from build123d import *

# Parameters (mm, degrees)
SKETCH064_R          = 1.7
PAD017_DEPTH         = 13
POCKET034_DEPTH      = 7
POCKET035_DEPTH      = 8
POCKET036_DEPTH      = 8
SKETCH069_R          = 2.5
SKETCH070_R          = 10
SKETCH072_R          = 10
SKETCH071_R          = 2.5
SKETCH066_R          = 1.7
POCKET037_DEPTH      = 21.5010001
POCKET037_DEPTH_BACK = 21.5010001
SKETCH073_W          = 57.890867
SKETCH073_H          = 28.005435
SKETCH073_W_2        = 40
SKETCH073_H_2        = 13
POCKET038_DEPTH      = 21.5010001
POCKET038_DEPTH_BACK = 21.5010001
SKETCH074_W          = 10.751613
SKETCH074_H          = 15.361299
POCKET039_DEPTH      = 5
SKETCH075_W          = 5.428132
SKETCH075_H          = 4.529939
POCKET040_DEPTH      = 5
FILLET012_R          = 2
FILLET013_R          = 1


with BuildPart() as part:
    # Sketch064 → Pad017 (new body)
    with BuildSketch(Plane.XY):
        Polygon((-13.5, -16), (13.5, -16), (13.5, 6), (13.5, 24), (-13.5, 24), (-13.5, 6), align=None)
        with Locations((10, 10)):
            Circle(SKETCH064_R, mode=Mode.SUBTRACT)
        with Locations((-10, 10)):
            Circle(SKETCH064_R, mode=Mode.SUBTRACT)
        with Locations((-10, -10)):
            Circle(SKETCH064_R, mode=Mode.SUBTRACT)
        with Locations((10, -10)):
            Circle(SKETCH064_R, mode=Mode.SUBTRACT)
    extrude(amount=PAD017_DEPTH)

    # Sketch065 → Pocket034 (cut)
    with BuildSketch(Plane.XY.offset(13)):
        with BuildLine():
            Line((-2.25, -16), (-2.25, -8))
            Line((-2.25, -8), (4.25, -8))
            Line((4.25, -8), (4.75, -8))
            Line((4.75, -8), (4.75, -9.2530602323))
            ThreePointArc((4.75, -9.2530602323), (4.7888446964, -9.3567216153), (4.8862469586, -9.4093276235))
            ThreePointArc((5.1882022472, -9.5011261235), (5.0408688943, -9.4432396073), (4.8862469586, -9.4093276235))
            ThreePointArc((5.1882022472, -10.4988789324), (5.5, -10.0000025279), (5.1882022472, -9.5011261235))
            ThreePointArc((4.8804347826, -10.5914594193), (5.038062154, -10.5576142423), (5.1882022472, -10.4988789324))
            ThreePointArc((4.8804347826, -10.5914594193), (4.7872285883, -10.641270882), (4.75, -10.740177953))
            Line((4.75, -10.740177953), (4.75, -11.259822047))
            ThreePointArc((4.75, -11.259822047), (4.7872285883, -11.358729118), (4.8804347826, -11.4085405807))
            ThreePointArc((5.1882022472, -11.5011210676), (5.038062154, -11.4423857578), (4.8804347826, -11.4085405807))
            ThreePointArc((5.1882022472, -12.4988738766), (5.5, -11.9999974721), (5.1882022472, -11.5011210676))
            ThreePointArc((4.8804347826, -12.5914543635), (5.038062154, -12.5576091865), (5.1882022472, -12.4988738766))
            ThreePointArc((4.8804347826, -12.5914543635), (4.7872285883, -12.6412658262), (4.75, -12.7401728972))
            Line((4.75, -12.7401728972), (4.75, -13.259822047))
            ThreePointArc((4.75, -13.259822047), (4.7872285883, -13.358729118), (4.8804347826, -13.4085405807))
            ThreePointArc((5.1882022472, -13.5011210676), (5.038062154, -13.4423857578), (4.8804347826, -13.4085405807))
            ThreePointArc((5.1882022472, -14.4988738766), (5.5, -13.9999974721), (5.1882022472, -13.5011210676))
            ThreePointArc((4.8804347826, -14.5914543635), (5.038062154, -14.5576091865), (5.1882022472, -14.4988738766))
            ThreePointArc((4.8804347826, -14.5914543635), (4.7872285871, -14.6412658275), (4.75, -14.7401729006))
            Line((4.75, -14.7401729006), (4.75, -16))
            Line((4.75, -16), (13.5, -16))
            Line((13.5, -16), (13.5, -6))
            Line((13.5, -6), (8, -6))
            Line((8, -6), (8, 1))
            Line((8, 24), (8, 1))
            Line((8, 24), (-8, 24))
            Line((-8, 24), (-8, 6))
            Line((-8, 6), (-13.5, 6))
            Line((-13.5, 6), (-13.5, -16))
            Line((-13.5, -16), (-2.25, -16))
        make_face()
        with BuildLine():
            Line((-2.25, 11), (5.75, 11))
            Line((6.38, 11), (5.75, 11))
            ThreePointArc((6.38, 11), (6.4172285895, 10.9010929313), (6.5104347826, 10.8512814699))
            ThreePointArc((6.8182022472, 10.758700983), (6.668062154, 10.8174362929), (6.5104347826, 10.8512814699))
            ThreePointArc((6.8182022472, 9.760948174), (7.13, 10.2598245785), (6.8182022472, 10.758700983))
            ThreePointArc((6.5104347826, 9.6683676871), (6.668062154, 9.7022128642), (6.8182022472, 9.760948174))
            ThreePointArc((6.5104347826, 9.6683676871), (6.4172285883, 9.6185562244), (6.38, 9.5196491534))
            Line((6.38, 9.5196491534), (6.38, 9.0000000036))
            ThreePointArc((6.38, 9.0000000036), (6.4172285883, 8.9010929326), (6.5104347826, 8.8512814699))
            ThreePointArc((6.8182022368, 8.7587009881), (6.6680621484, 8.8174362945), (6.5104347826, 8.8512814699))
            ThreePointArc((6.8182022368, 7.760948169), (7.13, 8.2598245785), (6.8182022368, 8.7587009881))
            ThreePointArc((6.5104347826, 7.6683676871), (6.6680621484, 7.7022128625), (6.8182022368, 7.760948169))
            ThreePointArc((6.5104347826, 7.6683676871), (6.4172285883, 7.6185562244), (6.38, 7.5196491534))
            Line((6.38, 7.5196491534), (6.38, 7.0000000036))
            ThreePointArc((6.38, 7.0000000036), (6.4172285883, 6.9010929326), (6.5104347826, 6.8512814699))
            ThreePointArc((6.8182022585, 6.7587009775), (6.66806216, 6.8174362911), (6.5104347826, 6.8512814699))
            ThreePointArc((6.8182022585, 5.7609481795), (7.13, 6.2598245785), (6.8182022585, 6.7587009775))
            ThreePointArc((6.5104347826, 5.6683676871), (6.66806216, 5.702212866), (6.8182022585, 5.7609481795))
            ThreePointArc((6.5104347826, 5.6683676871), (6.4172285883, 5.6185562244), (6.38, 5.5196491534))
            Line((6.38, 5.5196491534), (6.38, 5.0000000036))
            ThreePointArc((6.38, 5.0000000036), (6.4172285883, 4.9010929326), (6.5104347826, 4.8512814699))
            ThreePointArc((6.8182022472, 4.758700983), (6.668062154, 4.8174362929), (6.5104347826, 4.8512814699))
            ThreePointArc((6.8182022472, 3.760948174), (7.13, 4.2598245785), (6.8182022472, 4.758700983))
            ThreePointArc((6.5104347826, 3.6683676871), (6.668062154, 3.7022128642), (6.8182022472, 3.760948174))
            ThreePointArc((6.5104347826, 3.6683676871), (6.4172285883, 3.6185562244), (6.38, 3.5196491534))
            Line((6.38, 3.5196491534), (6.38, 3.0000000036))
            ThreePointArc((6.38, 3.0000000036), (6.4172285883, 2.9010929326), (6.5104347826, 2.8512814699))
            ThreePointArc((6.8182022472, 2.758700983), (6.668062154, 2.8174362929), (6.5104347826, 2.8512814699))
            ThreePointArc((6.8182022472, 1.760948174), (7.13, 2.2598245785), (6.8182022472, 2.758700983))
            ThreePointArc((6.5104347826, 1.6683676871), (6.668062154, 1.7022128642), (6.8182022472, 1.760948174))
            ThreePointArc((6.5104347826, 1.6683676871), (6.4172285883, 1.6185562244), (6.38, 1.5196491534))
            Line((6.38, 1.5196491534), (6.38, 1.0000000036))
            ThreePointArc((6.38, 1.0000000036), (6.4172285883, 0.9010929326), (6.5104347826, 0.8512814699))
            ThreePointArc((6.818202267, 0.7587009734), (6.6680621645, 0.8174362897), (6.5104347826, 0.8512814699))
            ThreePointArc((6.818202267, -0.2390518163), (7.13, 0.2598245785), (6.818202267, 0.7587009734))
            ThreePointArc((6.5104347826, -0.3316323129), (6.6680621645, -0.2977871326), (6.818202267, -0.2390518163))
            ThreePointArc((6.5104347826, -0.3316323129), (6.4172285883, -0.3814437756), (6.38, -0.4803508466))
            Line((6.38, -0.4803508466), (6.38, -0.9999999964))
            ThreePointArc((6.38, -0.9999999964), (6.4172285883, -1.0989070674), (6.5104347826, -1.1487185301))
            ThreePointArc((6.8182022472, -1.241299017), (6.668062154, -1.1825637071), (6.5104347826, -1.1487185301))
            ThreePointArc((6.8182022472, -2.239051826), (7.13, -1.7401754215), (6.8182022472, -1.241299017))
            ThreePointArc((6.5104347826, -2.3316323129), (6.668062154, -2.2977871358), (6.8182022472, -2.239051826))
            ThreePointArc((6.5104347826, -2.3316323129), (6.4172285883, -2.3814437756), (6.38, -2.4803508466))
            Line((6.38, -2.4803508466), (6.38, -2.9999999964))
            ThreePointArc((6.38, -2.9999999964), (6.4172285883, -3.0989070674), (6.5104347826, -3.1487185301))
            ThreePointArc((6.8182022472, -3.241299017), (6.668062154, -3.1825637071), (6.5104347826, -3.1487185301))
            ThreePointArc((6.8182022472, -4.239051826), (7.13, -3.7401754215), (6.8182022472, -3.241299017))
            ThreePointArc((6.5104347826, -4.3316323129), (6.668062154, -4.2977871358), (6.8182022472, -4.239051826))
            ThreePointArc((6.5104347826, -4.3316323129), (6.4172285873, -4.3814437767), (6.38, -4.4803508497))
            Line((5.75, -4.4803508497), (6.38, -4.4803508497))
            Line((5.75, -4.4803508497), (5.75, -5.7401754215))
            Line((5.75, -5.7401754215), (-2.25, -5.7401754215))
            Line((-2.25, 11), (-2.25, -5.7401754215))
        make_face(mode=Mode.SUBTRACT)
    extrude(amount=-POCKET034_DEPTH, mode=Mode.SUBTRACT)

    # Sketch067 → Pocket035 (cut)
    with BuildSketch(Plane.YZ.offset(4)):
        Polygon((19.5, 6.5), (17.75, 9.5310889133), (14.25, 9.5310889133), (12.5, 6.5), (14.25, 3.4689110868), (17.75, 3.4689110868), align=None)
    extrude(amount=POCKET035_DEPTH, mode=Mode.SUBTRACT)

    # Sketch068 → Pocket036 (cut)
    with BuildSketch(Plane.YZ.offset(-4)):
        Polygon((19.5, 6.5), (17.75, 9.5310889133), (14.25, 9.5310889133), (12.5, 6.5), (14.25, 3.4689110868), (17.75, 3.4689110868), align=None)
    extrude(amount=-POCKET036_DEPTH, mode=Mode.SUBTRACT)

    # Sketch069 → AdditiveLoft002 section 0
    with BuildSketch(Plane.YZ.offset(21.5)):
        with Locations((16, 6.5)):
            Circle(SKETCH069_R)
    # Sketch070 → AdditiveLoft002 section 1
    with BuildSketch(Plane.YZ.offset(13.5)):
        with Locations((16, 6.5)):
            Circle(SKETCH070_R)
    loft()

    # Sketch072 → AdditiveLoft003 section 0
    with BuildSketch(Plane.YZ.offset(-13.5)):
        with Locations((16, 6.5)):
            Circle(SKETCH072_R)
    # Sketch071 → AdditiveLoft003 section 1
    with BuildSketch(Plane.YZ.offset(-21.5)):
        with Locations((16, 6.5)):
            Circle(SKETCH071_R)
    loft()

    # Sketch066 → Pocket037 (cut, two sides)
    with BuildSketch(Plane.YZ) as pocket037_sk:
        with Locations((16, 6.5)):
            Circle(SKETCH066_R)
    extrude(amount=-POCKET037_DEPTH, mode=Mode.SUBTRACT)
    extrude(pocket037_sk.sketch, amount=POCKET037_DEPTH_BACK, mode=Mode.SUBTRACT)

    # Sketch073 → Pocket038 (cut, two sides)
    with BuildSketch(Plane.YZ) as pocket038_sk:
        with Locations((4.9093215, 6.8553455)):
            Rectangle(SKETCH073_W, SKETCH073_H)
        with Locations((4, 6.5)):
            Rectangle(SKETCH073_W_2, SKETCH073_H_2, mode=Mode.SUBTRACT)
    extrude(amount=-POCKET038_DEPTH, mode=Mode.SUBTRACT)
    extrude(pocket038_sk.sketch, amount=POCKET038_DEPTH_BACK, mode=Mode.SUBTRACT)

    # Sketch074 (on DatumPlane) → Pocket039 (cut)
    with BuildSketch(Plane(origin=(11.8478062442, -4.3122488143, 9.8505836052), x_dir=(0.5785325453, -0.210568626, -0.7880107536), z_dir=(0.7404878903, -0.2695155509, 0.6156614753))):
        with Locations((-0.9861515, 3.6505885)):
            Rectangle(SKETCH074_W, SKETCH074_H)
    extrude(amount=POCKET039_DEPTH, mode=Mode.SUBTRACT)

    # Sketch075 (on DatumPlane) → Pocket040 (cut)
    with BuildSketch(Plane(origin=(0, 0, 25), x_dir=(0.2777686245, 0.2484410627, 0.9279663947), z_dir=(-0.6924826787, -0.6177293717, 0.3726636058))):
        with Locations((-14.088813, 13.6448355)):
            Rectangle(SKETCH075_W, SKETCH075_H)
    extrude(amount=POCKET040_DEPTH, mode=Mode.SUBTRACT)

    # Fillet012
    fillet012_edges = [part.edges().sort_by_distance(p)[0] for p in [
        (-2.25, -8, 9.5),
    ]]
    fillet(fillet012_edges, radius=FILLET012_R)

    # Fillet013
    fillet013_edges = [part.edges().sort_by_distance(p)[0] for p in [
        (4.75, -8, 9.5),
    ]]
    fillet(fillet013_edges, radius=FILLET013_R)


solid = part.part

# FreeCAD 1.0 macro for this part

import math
import FreeCAD as App
import Part
import Sketcher
Q = App.Units.Quantity


def edges_at(feature, points):
    """Names of the edges that pass closest to the given points."""
    edges = feature.Shape.Edges
    near = lambda p: min(range(len(edges)), key=lambda i: edges[i].distToShape(Part.Vertex(*p))[0])
    return sorted({f"Edge{near(p) + 1}" for p in points})

doc = App.newDocument("Part")
body = doc.addObject("PartDesign::Body", "Body")

sketch1 = body.newObject("Sketcher::SketchObject", "Sketch")
sketch1.AttachmentSupport = (doc.getObject("XY_Plane"), [""])
sketch1.MapMode = "FlatFace"
sketch1.addGeometry([
    Part.LineSegment(App.Vector(-13.5, -16, 0), App.Vector(13.5, -16, 0)),
    Part.LineSegment(App.Vector(13.5, -16, 0), App.Vector(13.5, 24, 0)),
    Part.LineSegment(App.Vector(13.5, 24, 0), App.Vector(-13.5, 24, 0)),
    Part.LineSegment(App.Vector(-13.5, 24, 0), App.Vector(-13.5, -16, 0)),
    Part.Circle(App.Vector(-10, -10, 0), App.Vector(0, 0, 1), 1.7),
    Part.Circle(App.Vector(10, -10, 0), App.Vector(0, 0, 1), 1.7),
    Part.Circle(App.Vector(-10, 10, 0), App.Vector(0, 0, 1), 1.7),
    Part.Circle(App.Vector(10, 10, 0), App.Vector(0, 0, 1), 1.7),
], False)
sketch1.addConstraint([
    Sketcher.Constraint("Coincident", 0, 2, 1, 1),
    Sketcher.Constraint("Coincident", 1, 2, 2, 1),
    Sketcher.Constraint("Coincident", 2, 2, 3, 1),
    Sketcher.Constraint("Coincident", 3, 2, 0, 1),
    Sketcher.Constraint("Horizontal", 0),
    Sketcher.Constraint("Vertical", 1),
    Sketcher.Constraint("Horizontal", 2),
    Sketcher.Constraint("Vertical", 3),
    Sketcher.Constraint("Equal", 4, 5),
    Sketcher.Constraint("Equal", 5, 6),
    Sketcher.Constraint("Equal", 6, 7),
    Sketcher.Constraint("Symmetric", 5, 3, 6, 3, -1, 1),
    Sketcher.Constraint("Symmetric", 4, 3, 7, 3, -1, 1),
    Sketcher.Constraint("Symmetric", 4, 3, 5, 3, -2),
    Sketcher.Constraint("Diameter", 4, 3.4),
    Sketcher.Constraint("DistanceX", 0, 1, 0, 2, 27.0),
    Sketcher.Constraint("DistanceY", 1, 1, 1, 2, 40.0),
    Sketcher.Constraint("DistanceX", 4, 3, -1, 1, 10.0),
    Sketcher.Constraint("DistanceY", 4, 3, -1, 1, 10.0),
    Sketcher.Constraint("DistanceY", 0, 2, -1, 1, 16.0),
    Sketcher.Constraint("DistanceX", -1, 1, 0, 2, 13.5),
])
pad1 = body.newObject("PartDesign::Pad", "Pad")
pad1.Profile = sketch1
pad1.Length = 13

sketch2 = body.newObject("Sketcher::SketchObject", "Sketch001")
sketch2.AttachmentSupport = (doc.getObject("XY_Plane"), [""])
sketch2.MapMode = "FlatFace"
sketch2.AttachmentOffset = App.Placement(App.Vector(0, 0, 13), App.Rotation())
sketch2.addGeometry([
    Part.LineSegment(App.Vector(-2.25, -16, 0), App.Vector(-2.25, -8, 0)),
    Part.LineSegment(App.Vector(-2.25, -8, 0), App.Vector(4.75, -8, 0)),
    Part.LineSegment(App.Vector(4.75, -8, 0), App.Vector(4.75, -9.25, 0)),
    Part.ArcOfCircle(Part.Circle(App.Vector(4.91, -9.25, 0), App.Vector(0, 0, 1), 0.16), math.radians(-180), math.radians(-98)),
    Part.ArcOfCircle(Part.Circle(App.Vector(4.75, -10.4, 0), App.Vector(0, 0, 1), 1), math.radians(64.01), math.radians(82.17)),
    Part.ArcOfCircle(Part.Circle(App.Vector(4.95, -10, 0), App.Vector(0, 0, 1), 0.56), math.radians(-64), math.radians(64)),
    Part.ArcOfCircle(Part.Circle(App.Vector(4.75, -9.6, 0), App.Vector(0, 0, 1), 1), math.radians(-82.51), math.radians(-64.01)),
    Part.ArcOfCircle(Part.Circle(App.Vector(4.9, -10.74, 0), App.Vector(0, 0, 1), 0.15), math.radians(97), math.radians(180)),
    Part.LineSegment(App.Vector(4.75, -10.74, 0), App.Vector(4.75, -11.26, 0)),
    Part.ArcOfCircle(Part.Circle(App.Vector(4.9, -11.26, 0), App.Vector(0, 0, 1), 0.15), math.radians(180), math.radians(263)),
    Part.ArcOfCircle(Part.Circle(App.Vector(4.75, -12.4, 0), App.Vector(0, 0, 1), 1), math.radians(64.01), math.radians(82.51)),
    Part.ArcOfCircle(Part.Circle(App.Vector(4.95, -12, 0), App.Vector(0, 0, 1), 0.56), math.radians(-64), math.radians(64)),
    Part.ArcOfCircle(Part.Circle(App.Vector(4.75, -11.6, 0), App.Vector(0, 0, 1), 1), math.radians(-82.51), math.radians(-64.01)),
    Part.ArcOfCircle(Part.Circle(App.Vector(4.9, -12.74, 0), App.Vector(0, 0, 1), 0.15), math.radians(97), math.radians(180)),
    Part.LineSegment(App.Vector(4.75, -12.74, 0), App.Vector(4.75, -13.26, 0)),
    Part.ArcOfCircle(Part.Circle(App.Vector(4.9, -13.26, 0), App.Vector(0, 0, 1), 0.15), math.radians(180), math.radians(263)),
    Part.ArcOfCircle(Part.Circle(App.Vector(4.75, -14.4, 0), App.Vector(0, 0, 1), 1), math.radians(64.01), math.radians(82.51)),
    Part.ArcOfCircle(Part.Circle(App.Vector(4.95, -14, 0), App.Vector(0, 0, 1), 0.56), math.radians(-64), math.radians(64)),
    Part.ArcOfCircle(Part.Circle(App.Vector(4.75, -13.6, 0), App.Vector(0, 0, 1), 1), math.radians(-82.51), math.radians(-64.01)),
    Part.ArcOfCircle(Part.Circle(App.Vector(4.9, -14.74, 0), App.Vector(0, 0, 1), 0.15), math.radians(97), math.radians(180)),
    Part.LineSegment(App.Vector(4.75, -14.74, 0), App.Vector(4.75, -16, 0)),
    Part.LineSegment(App.Vector(4.75, -16, 0), App.Vector(13.5, -16, 0)),
    Part.LineSegment(App.Vector(13.5, -16, 0), App.Vector(13.5, -6, 0)),
    Part.LineSegment(App.Vector(13.5, -6, 0), App.Vector(8, -6, 0)),
    Part.LineSegment(App.Vector(8, -6, 0), App.Vector(8, 24, 0)),
    Part.LineSegment(App.Vector(8, 24, 0), App.Vector(-8, 24, 0)),
    Part.LineSegment(App.Vector(-8, 24, 0), App.Vector(-8, 6, 0)),
    Part.LineSegment(App.Vector(-8, 6, 0), App.Vector(-13.5, 6, 0)),
    Part.LineSegment(App.Vector(-13.5, 6, 0), App.Vector(-13.5, -16, 0)),
    Part.LineSegment(App.Vector(-13.5, -16, 0), App.Vector(-2.25, -16, 0)),
    Part.LineSegment(App.Vector(-2.25, -5.74, 0), App.Vector(-2.25, 11, 0)),
    Part.LineSegment(App.Vector(-2.25, 11, 0), App.Vector(6.38, 11, 0)),
    Part.ArcOfCircle(Part.Circle(App.Vector(6.53, 11, 0), App.Vector(0, 0, 1), 0.15), math.radians(-180), math.radians(-97)),
    Part.ArcOfCircle(Part.Circle(App.Vector(6.38, 9.86, 0), App.Vector(0, 0, 1), 1), math.radians(64.01), math.radians(82.51)),
    Part.ArcOfCircle(Part.Circle(App.Vector(6.58, 10.26, 0), App.Vector(0, 0, 1), 0.56), math.radians(-64), math.radians(64)),
    Part.ArcOfCircle(Part.Circle(App.Vector(6.38, 10.66, 0), App.Vector(0, 0, 1), 1), math.radians(-82.51), math.radians(-64.01)),
    Part.ArcOfCircle(Part.Circle(App.Vector(6.53, 9.52, 0), App.Vector(0, 0, 1), 0.15), math.radians(97), math.radians(180)),
    Part.LineSegment(App.Vector(6.38, 9.52, 0), App.Vector(6.38, 9, 0)),
    Part.ArcOfCircle(Part.Circle(App.Vector(6.53, 9, 0), App.Vector(0, 0, 1), 0.15), math.radians(180), math.radians(263)),
    Part.ArcOfCircle(Part.Circle(App.Vector(6.38, 7.86, 0), App.Vector(0, 0, 1), 1), math.radians(64.01), math.radians(82.51)),
    Part.ArcOfCircle(Part.Circle(App.Vector(6.58, 8.26, 0), App.Vector(0, 0, 1), 0.56), math.radians(-64), math.radians(64)),
    Part.ArcOfCircle(Part.Circle(App.Vector(6.38, 8.66, 0), App.Vector(0, 0, 1), 1), math.radians(-82.51), math.radians(-64.01)),
    Part.ArcOfCircle(Part.Circle(App.Vector(6.53, 7.52, 0), App.Vector(0, 0, 1), 0.15), math.radians(97), math.radians(180)),
    Part.LineSegment(App.Vector(6.38, 7.52, 0), App.Vector(6.38, 7, 0)),
    Part.ArcOfCircle(Part.Circle(App.Vector(6.53, 7, 0), App.Vector(0, 0, 1), 0.15), math.radians(180), math.radians(263)),
    Part.ArcOfCircle(Part.Circle(App.Vector(6.38, 5.86, 0), App.Vector(0, 0, 1), 1), math.radians(64.01), math.radians(82.51)),
    Part.ArcOfCircle(Part.Circle(App.Vector(6.58, 6.26, 0), App.Vector(0, 0, 1), 0.56), math.radians(-64), math.radians(64)),
    Part.ArcOfCircle(Part.Circle(App.Vector(6.38, 6.66, 0), App.Vector(0, 0, 1), 1), math.radians(-82.51), math.radians(-64.01)),
    Part.ArcOfCircle(Part.Circle(App.Vector(6.53, 5.52, 0), App.Vector(0, 0, 1), 0.15), math.radians(97), math.radians(180)),
    Part.LineSegment(App.Vector(6.38, 5.52, 0), App.Vector(6.38, 5, 0)),
    Part.ArcOfCircle(Part.Circle(App.Vector(6.53, 5, 0), App.Vector(0, 0, 1), 0.15), math.radians(180), math.radians(263)),
    Part.ArcOfCircle(Part.Circle(App.Vector(6.38, 3.86, 0), App.Vector(0, 0, 1), 1), math.radians(64.01), math.radians(82.51)),
    Part.ArcOfCircle(Part.Circle(App.Vector(6.58, 4.26, 0), App.Vector(0, 0, 1), 0.56), math.radians(-64), math.radians(64)),
    Part.ArcOfCircle(Part.Circle(App.Vector(6.38, 4.66, 0), App.Vector(0, 0, 1), 1), math.radians(-82.51), math.radians(-64.01)),
    Part.ArcOfCircle(Part.Circle(App.Vector(6.53, 3.52, 0), App.Vector(0, 0, 1), 0.15), math.radians(97), math.radians(180)),
    Part.LineSegment(App.Vector(6.38, 3.52, 0), App.Vector(6.38, 3, 0)),
    Part.ArcOfCircle(Part.Circle(App.Vector(6.53, 3, 0), App.Vector(0, 0, 1), 0.15), math.radians(180), math.radians(263)),
    Part.ArcOfCircle(Part.Circle(App.Vector(6.38, 1.86, 0), App.Vector(0, 0, 1), 1), math.radians(64.01), math.radians(82.51)),
    Part.ArcOfCircle(Part.Circle(App.Vector(6.58, 2.26, 0), App.Vector(0, 0, 1), 0.56), math.radians(-64), math.radians(64)),
    Part.ArcOfCircle(Part.Circle(App.Vector(6.38, 2.66, 0), App.Vector(0, 0, 1), 1), math.radians(-82.51), math.radians(-64.01)),
    Part.ArcOfCircle(Part.Circle(App.Vector(6.53, 1.52, 0), App.Vector(0, 0, 1), 0.15), math.radians(97), math.radians(180)),
    Part.LineSegment(App.Vector(6.38, 1.52, 0), App.Vector(6.38, 1, 0)),
    Part.ArcOfCircle(Part.Circle(App.Vector(6.53, 1, 0), App.Vector(0, 0, 1), 0.15), math.radians(180), math.radians(263)),
    Part.ArcOfCircle(Part.Circle(App.Vector(6.38, -0.14, 0), App.Vector(0, 0, 1), 1), math.radians(64.01), math.radians(82.51)),
    Part.ArcOfCircle(Part.Circle(App.Vector(6.58, 0.26, 0), App.Vector(0, 0, 1), 0.56), math.radians(-64), math.radians(64)),
    Part.ArcOfCircle(Part.Circle(App.Vector(6.38, 0.66, 0), App.Vector(0, 0, 1), 1), math.radians(-82.51), math.radians(-64.01)),
    Part.ArcOfCircle(Part.Circle(App.Vector(6.53, -0.48, 0), App.Vector(0, 0, 1), 0.15), math.radians(97), math.radians(180)),
    Part.LineSegment(App.Vector(6.38, -0.48, 0), App.Vector(6.38, -1, 0)),
    Part.ArcOfCircle(Part.Circle(App.Vector(6.53, -1, 0), App.Vector(0, 0, 1), 0.15), math.radians(180), math.radians(263)),
    Part.ArcOfCircle(Part.Circle(App.Vector(6.38, -2.14, 0), App.Vector(0, 0, 1), 1), math.radians(64.01), math.radians(82.51)),
    Part.ArcOfCircle(Part.Circle(App.Vector(6.58, -1.74, 0), App.Vector(0, 0, 1), 0.56), math.radians(-64), math.radians(64)),
    Part.ArcOfCircle(Part.Circle(App.Vector(6.38, -1.34, 0), App.Vector(0, 0, 1), 1), math.radians(-82.51), math.radians(-64.01)),
    Part.ArcOfCircle(Part.Circle(App.Vector(6.53, -2.48, 0), App.Vector(0, 0, 1), 0.15), math.radians(97), math.radians(180)),
    Part.LineSegment(App.Vector(6.38, -2.48, 0), App.Vector(6.38, -3, 0)),
    Part.ArcOfCircle(Part.Circle(App.Vector(6.53, -3, 0), App.Vector(0, 0, 1), 0.15), math.radians(180), math.radians(263)),
    Part.ArcOfCircle(Part.Circle(App.Vector(6.38, -4.14, 0), App.Vector(0, 0, 1), 1), math.radians(64.01), math.radians(82.51)),
    Part.ArcOfCircle(Part.Circle(App.Vector(6.58, -3.74, 0), App.Vector(0, 0, 1), 0.56), math.radians(-64), math.radians(64)),
    Part.ArcOfCircle(Part.Circle(App.Vector(6.38, -3.34, 0), App.Vector(0, 0, 1), 1), math.radians(-82.51), math.radians(-64.01)),
    Part.ArcOfCircle(Part.Circle(App.Vector(6.53, -4.48, 0), App.Vector(0, 0, 1), 0.15), math.radians(97), math.radians(180)),
    Part.LineSegment(App.Vector(6.38, -4.48, 0), App.Vector(5.75, -4.48, 0)),
    Part.LineSegment(App.Vector(5.75, -4.48, 0), App.Vector(5.75, -5.74, 0)),
    Part.LineSegment(App.Vector(5.75, -5.74, 0), App.Vector(-2.25, -5.74, 0)),
], False)
sketch2.addConstraint([
    Sketcher.Constraint("Coincident", 0, 2, 1, 1),
    Sketcher.Constraint("Coincident", 1, 2, 2, 1),
    Sketcher.Constraint("Tangent", 2, 2, 3, 1),
    Sketcher.Constraint("Tangent", 3, 2, 4, 2),
    Sketcher.Constraint("Tangent", 4, 1, 5, 2),
    Sketcher.Constraint("Tangent", 5, 1, 6, 2),
    Sketcher.Constraint("Tangent", 6, 1, 7, 1),
    Sketcher.Constraint("Tangent", 7, 2, 8, 1),
    Sketcher.Constraint("Tangent", 8, 2, 9, 1),
    Sketcher.Constraint("Tangent", 9, 2, 10, 2),
    Sketcher.Constraint("Tangent", 10, 1, 11, 2),
    Sketcher.Constraint("Tangent", 11, 1, 12, 2),
    Sketcher.Constraint("Tangent", 12, 1, 13, 1),
    Sketcher.Constraint("Tangent", 13, 2, 14, 1),
    Sketcher.Constraint("Tangent", 14, 2, 15, 1),
    Sketcher.Constraint("Tangent", 15, 2, 16, 2),
    Sketcher.Constraint("Tangent", 16, 1, 17, 2),
    Sketcher.Constraint("Tangent", 17, 1, 18, 2),
    Sketcher.Constraint("Tangent", 18, 1, 19, 1),
    Sketcher.Constraint("Tangent", 19, 2, 20, 1),
    Sketcher.Constraint("Coincident", 20, 2, 21, 1),
    Sketcher.Constraint("Coincident", 21, 2, 22, 1),
    Sketcher.Constraint("Coincident", 22, 2, 23, 1),
    Sketcher.Constraint("Coincident", 23, 2, 24, 1),
    Sketcher.Constraint("Coincident", 24, 2, 25, 1),
    Sketcher.Constraint("Coincident", 25, 2, 26, 1),
    Sketcher.Constraint("Coincident", 26, 2, 27, 1),
    Sketcher.Constraint("Coincident", 27, 2, 28, 1),
    Sketcher.Constraint("Coincident", 28, 2, 29, 1),
    Sketcher.Constraint("Coincident", 29, 2, 0, 1),
    Sketcher.Constraint("Coincident", 30, 2, 31, 1),
    Sketcher.Constraint("Coincident", 31, 2, 32, 1),
    Sketcher.Constraint("Tangent", 32, 2, 33, 2),
    Sketcher.Constraint("Tangent", 33, 1, 34, 2),
    Sketcher.Constraint("Tangent", 34, 1, 35, 2),
    Sketcher.Constraint("Tangent", 35, 1, 36, 1),
    Sketcher.Constraint("Tangent", 36, 2, 37, 1),
    Sketcher.Constraint("Tangent", 37, 2, 38, 1),
    Sketcher.Constraint("Tangent", 38, 2, 39, 2),
    Sketcher.Constraint("Tangent", 39, 1, 40, 2),
    Sketcher.Constraint("Tangent", 40, 1, 41, 2),
    Sketcher.Constraint("Tangent", 41, 1, 42, 1),
    Sketcher.Constraint("Tangent", 42, 2, 43, 1),
    Sketcher.Constraint("Tangent", 43, 2, 44, 1),
    Sketcher.Constraint("Tangent", 44, 2, 45, 2),
    Sketcher.Constraint("Tangent", 45, 1, 46, 2),
    Sketcher.Constraint("Tangent", 46, 1, 47, 2),
    Sketcher.Constraint("Tangent", 47, 1, 48, 1),
    Sketcher.Constraint("Tangent", 48, 2, 49, 1),
    Sketcher.Constraint("Tangent", 49, 2, 50, 1),
    Sketcher.Constraint("Tangent", 50, 2, 51, 2),
    Sketcher.Constraint("Tangent", 51, 1, 52, 2),
    Sketcher.Constraint("Tangent", 52, 1, 53, 2),
    Sketcher.Constraint("Tangent", 53, 1, 54, 1),
    Sketcher.Constraint("Tangent", 54, 2, 55, 1),
    Sketcher.Constraint("Tangent", 55, 2, 56, 1),
    Sketcher.Constraint("Tangent", 56, 2, 57, 2),
    Sketcher.Constraint("Tangent", 57, 1, 58, 2),
    Sketcher.Constraint("Tangent", 58, 1, 59, 2),
    Sketcher.Constraint("Tangent", 59, 1, 60, 1),
    Sketcher.Constraint("Tangent", 60, 2, 61, 1),
    Sketcher.Constraint("Tangent", 61, 2, 62, 1),
    Sketcher.Constraint("Tangent", 62, 2, 63, 2),
    Sketcher.Constraint("Tangent", 63, 1, 64, 2),
    Sketcher.Constraint("Tangent", 64, 1, 65, 2),
    Sketcher.Constraint("Tangent", 65, 1, 66, 1),
    Sketcher.Constraint("Tangent", 66, 2, 67, 1),
    Sketcher.Constraint("Tangent", 67, 2, 68, 1),
    Sketcher.Constraint("Tangent", 68, 2, 69, 2),
    Sketcher.Constraint("Tangent", 69, 1, 70, 2),
    Sketcher.Constraint("Tangent", 70, 1, 71, 2),
    Sketcher.Constraint("Tangent", 71, 1, 72, 1),
    Sketcher.Constraint("Tangent", 72, 2, 73, 1),
    Sketcher.Constraint("Tangent", 73, 2, 74, 1),
    Sketcher.Constraint("Tangent", 74, 2, 75, 2),
    Sketcher.Constraint("Tangent", 75, 1, 76, 2),
    Sketcher.Constraint("Tangent", 76, 1, 77, 2),
    Sketcher.Constraint("Tangent", 77, 1, 78, 1),
    Sketcher.Constraint("Coincident", 78, 2, 79, 1),
    Sketcher.Constraint("Coincident", 79, 2, 80, 1),
    Sketcher.Constraint("Coincident", 80, 2, 81, 1),
    Sketcher.Constraint("Coincident", 81, 2, 30, 1),
    Sketcher.Constraint("Vertical", 0),
    Sketcher.Constraint("Horizontal", 1),
    Sketcher.Constraint("Vertical", 2),
    Sketcher.Constraint("Vertical", 8),
    Sketcher.Constraint("Vertical", 14),
    Sketcher.Constraint("Vertical", 20),
    Sketcher.Constraint("Horizontal", 21),
    Sketcher.Constraint("Vertical", 22),
    Sketcher.Constraint("Horizontal", 23),
    Sketcher.Constraint("Vertical", 24),
    Sketcher.Constraint("Horizontal", 25),
    Sketcher.Constraint("Vertical", 26),
    Sketcher.Constraint("Horizontal", 27),
    Sketcher.Constraint("Vertical", 28),
    Sketcher.Constraint("Horizontal", 29),
    Sketcher.Constraint("Vertical", 30),
    Sketcher.Constraint("Horizontal", 31),
    Sketcher.Constraint("Vertical", 37),
    Sketcher.Constraint("Vertical", 43),
    Sketcher.Constraint("Vertical", 49),
    Sketcher.Constraint("Vertical", 55),
    Sketcher.Constraint("Vertical", 61),
    Sketcher.Constraint("Vertical", 67),
    Sketcher.Constraint("Vertical", 73),
    Sketcher.Constraint("Horizontal", 79),
    Sketcher.Constraint("Vertical", 80),
    Sketcher.Constraint("Horizontal", 81),
    Sketcher.Constraint("Equal", 4, 6),
    Sketcher.Constraint("Equal", 7, 9),
    Sketcher.Constraint("Equal", 6, 10),
    Sketcher.Constraint("Equal", 5, 11),
    Sketcher.Constraint("Equal", 10, 12),
    Sketcher.Constraint("Equal", 9, 13),
    Sketcher.Constraint("Equal", 13, 15),
    Sketcher.Constraint("Equal", 12, 16),
    Sketcher.Constraint("Equal", 11, 17),
    Sketcher.Constraint("Equal", 16, 18),
    Sketcher.Constraint("Equal", 15, 19),
    Sketcher.Constraint("Equal", 19, 32),
    Sketcher.Constraint("Equal", 18, 33),
    Sketcher.Constraint("Equal", 17, 34),
    Sketcher.Constraint("Equal", 33, 35),
    Sketcher.Constraint("Equal", 32, 36),
    Sketcher.Constraint("Equal", 36, 38),
    Sketcher.Constraint("Equal", 35, 39),
    Sketcher.Constraint("Equal", 34, 40),
    Sketcher.Constraint("Equal", 39, 41),
    Sketcher.Constraint("Equal", 38, 42),
    Sketcher.Constraint("Equal", 42, 44),
    Sketcher.Constraint("Equal", 41, 45),
    Sketcher.Constraint("Equal", 40, 46),
    Sketcher.Constraint("Equal", 45, 47),
    Sketcher.Constraint("Equal", 44, 48),
    Sketcher.Constraint("Equal", 48, 50),
    Sketcher.Constraint("Equal", 47, 51),
    Sketcher.Constraint("Equal", 46, 52),
    Sketcher.Constraint("Equal", 51, 53),
    Sketcher.Constraint("Equal", 50, 54),
    Sketcher.Constraint("Equal", 54, 56),
    Sketcher.Constraint("Equal", 53, 57),
    Sketcher.Constraint("Equal", 52, 58),
    Sketcher.Constraint("Equal", 57, 59),
    Sketcher.Constraint("Equal", 56, 60),
    Sketcher.Constraint("Equal", 60, 62),
    Sketcher.Constraint("Equal", 59, 63),
    Sketcher.Constraint("Equal", 58, 64),
    Sketcher.Constraint("Equal", 63, 65),
    Sketcher.Constraint("Equal", 62, 66),
    Sketcher.Constraint("Equal", 66, 68),
    Sketcher.Constraint("Equal", 65, 69),
    Sketcher.Constraint("Equal", 64, 70),
    Sketcher.Constraint("Equal", 69, 71),
    Sketcher.Constraint("Equal", 68, 72),
    Sketcher.Constraint("Equal", 72, 74),
    Sketcher.Constraint("Equal", 71, 75),
    Sketcher.Constraint("Equal", 70, 76),
    Sketcher.Constraint("Equal", 75, 77),
    Sketcher.Constraint("Equal", 74, 78),
    Sketcher.Constraint("Symmetric", 23, 2, 26, 2, -1, 1),
    Sketcher.Constraint("Symmetric", 21, 2, 28, 2, -2),
    Sketcher.Constraint("Symmetric", 62, 3, 68, 3, -1),
    Sketcher.Constraint("Symmetric", 56, 3, 74, 3, -1),
    Sketcher.Constraint("Horizontal", 32, 3, 30, 2),
    Sketcher.Constraint("Vertical", 4, 3, 6, 3),
    Sketcher.Constraint("Vertical", 6, 3, 10, 3),
    Sketcher.Constraint("Vertical", 5, 3, 11, 3),
    Sketcher.Constraint("Vertical", 10, 3, 12, 3),
    Sketcher.Constraint("Vertical", 9, 3, 13, 3),
    Sketcher.Constraint("Vertical", 12, 3, 16, 3),
    Sketcher.Constraint("Vertical", 11, 3, 17, 3),
    Sketcher.Constraint("Vertical", 16, 3, 18, 3),
    Sketcher.Constraint("Vertical", 15, 3, 19, 3),
    Sketcher.Constraint("Vertical", 33, 3, 35, 3),
    Sketcher.Constraint("Vertical", 32, 3, 36, 3),
    Sketcher.Constraint("Vertical", 35, 3, 39, 3),
    Sketcher.Constraint("Vertical", 34, 3, 40, 3),
    Sketcher.Constraint("Vertical", 39, 3, 41, 3),
    Sketcher.Constraint("Vertical", 38, 3, 42, 3),
    Sketcher.Constraint("Vertical", 41, 3, 45, 3),
    Sketcher.Constraint("Vertical", 40, 3, 46, 3),
    Sketcher.Constraint("Vertical", 45, 3, 47, 3),
    Sketcher.Constraint("Vertical", 44, 3, 48, 3),
    Sketcher.Constraint("Vertical", 47, 3, 51, 3),
    Sketcher.Constraint("Vertical", 46, 3, 52, 3),
    Sketcher.Constraint("Vertical", 51, 3, 53, 3),
    Sketcher.Constraint("Vertical", 50, 3, 54, 3),
    Sketcher.Constraint("Vertical", 53, 3, 57, 3),
    Sketcher.Constraint("Vertical", 52, 3, 58, 3),
    Sketcher.Constraint("Vertical", 57, 3, 59, 3),
    Sketcher.Constraint("Vertical", 56, 3, 60, 3),
    Sketcher.Constraint("Vertical", 59, 3, 63, 3),
    Sketcher.Constraint("Vertical", 58, 3, 64, 3),
    Sketcher.Constraint("Vertical", 63, 3, 65, 3),
    Sketcher.Constraint("Vertical", 65, 3, 69, 3),
    Sketcher.Constraint("Vertical", 64, 3, 70, 3),
    Sketcher.Constraint("Vertical", 69, 3, 71, 3),
    Sketcher.Constraint("Vertical", 71, 3, 75, 3),
    Sketcher.Constraint("Vertical", 70, 3, 76, 3),
    Sketcher.Constraint("Vertical", 75, 3, 77, 3),
    Sketcher.Constraint("Vertical", 74, 3, 78, 3),
    Sketcher.Constraint("Vertical", 18, 3, 1, 2),
    Sketcher.Constraint("Vertical", 2, 2, 7, 2),
    Sketcher.Constraint("Vertical", 29, 2, 30, 2),
    Sketcher.Constraint("Vertical", 77, 3, 31, 2),
    Sketcher.Constraint("Equal", 81, 0),
    Sketcher.Constraint("Equal", 14, 37),
    Sketcher.Constraint("Equal", 37, 43),
    Sketcher.Constraint("Equal", 43, 49),
    Sketcher.Constraint("Equal", 49, 55),
    Sketcher.Constraint("Equal", 55, 61),
    Sketcher.Constraint("Equal", 61, 67),
    Sketcher.Constraint("Radius", 4, 1.0),
    Sketcher.Constraint("DistanceX", 1, 1, 1, 2, 7.0),
    Sketcher.Constraint("DistanceX", 25, 2, 25, 1, 16.0),
    Sketcher.Constraint("DistanceX", 81, 2, 81, 1, 8.0),
    Sketcher.Constraint("DistanceY", 22, 1, 22, 2, 10.0),
    Sketcher.Constraint("DistanceY", 24, 1, 24, 2, 30.0),
    Sketcher.Constraint("DistanceY", 26, 2, 26, 1, 18.0),
    Sketcher.Constraint("Radius", 7, 0.15),
    Sketcher.Constraint("DistanceX", 23, 2, 23, 1, 5.5),
    Sketcher.Constraint("DistanceY", -1, 1, 32, 3, 11.0),
    Sketcher.Constraint("Radius", 5, 0.555),
    Sketcher.Constraint("DistanceX", 21, 1, 21, 2, 8.75),
    Sketcher.Constraint("DistanceX", 31, 1, 31, 2, 8.63),
    Sketcher.Constraint("Radius", 3, 0.157738),
    Sketcher.Constraint("DistanceX", -1, 1, 5, 3, 4.945),
    Sketcher.Constraint("DistanceX", -1, 1, 34, 3, 6.575),
    Sketcher.Constraint("DistanceY", 2, 2, 2, 1, 1.25306),
    Sketcher.Constraint("DistanceY", 8, 2, 8, 1, 0.519644),
    Sketcher.Constraint("DistanceY", 30, 1, 30, 2, 16.740175),
    Sketcher.Constraint("DistanceY", 80, 2, 80, 1, 1.259825),
])
pocket1 = body.newObject("PartDesign::Pocket", "Pocket")
pocket1.Profile = sketch2
pocket1.Length = 7

sketch3 = body.newObject("Sketcher::SketchObject", "Sketch002")
sketch3.AttachmentSupport = (doc.getObject("YZ_Plane"), [""])
sketch3.MapMode = "FlatFace"
sketch3.AttachmentOffset = App.Placement(App.Vector(0, 0, 4), App.Rotation())
sketch3.addGeometry([
    Part.LineSegment(App.Vector(19.5, 6.5, 0), App.Vector(17.8, 9.5, 0)),
    Part.LineSegment(App.Vector(17.8, 9.5, 0), App.Vector(14.2, 9.5, 0)),
    Part.LineSegment(App.Vector(14.2, 9.5, 0), App.Vector(12.5, 6.5, 0)),
    Part.LineSegment(App.Vector(12.5, 6.5, 0), App.Vector(14.2, 3.5, 0)),
    Part.LineSegment(App.Vector(14.2, 3.5, 0), App.Vector(17.8, 3.5, 0)),
    Part.LineSegment(App.Vector(17.8, 3.5, 0), App.Vector(19.5, 6.5, 0)),
], False)
sketch3.addConstraint([
    Sketcher.Constraint("Coincident", 0, 2, 1, 1),
    Sketcher.Constraint("Coincident", 1, 2, 2, 1),
    Sketcher.Constraint("Coincident", 2, 2, 3, 1),
    Sketcher.Constraint("Coincident", 3, 2, 4, 1),
    Sketcher.Constraint("Coincident", 4, 2, 5, 1),
    Sketcher.Constraint("Coincident", 5, 2, 0, 1),
    Sketcher.Constraint("Horizontal", 1),
    Sketcher.Constraint("Horizontal", 4),
    Sketcher.Constraint("Parallel", 0, 3),
    Sketcher.Constraint("Parallel", 2, 5),
    Sketcher.Constraint("Horizontal", 2, 2, 5, 2),
    Sketcher.Constraint("Vertical", 1, 2, 3, 2),
    Sketcher.Constraint("Vertical", 0, 2, 4, 2),
    Sketcher.Constraint("Angle", 0, Q("120 deg")),
    Sketcher.Constraint("DistanceX", 1, 2, 1, 1, 3.5),
    Sketcher.Constraint("DistanceX", 2, 2, 5, 2, 7.0),
    Sketcher.Constraint("DistanceX", -1, 1, 2, 2, 12.5),
    Sketcher.Constraint("DistanceY", -1, 1, 2, 2, 6.5),
])
pocket2 = body.newObject("PartDesign::Pocket", "Pocket001")
pocket2.Profile = sketch3
pocket2.Length = 8
pocket2.Reversed = True

sketch4 = body.newObject("Sketcher::SketchObject", "Sketch003")
sketch4.AttachmentSupport = (doc.getObject("YZ_Plane"), [""])
sketch4.MapMode = "FlatFace"
sketch4.AttachmentOffset = App.Placement(App.Vector(0, 0, -4), App.Rotation())
sketch4.addGeometry([
    Part.LineSegment(App.Vector(19.5, 6.5, 0), App.Vector(17.8, 9.5, 0)),
    Part.LineSegment(App.Vector(17.8, 9.5, 0), App.Vector(14.2, 9.5, 0)),
    Part.LineSegment(App.Vector(14.2, 9.5, 0), App.Vector(12.5, 6.5, 0)),
    Part.LineSegment(App.Vector(12.5, 6.5, 0), App.Vector(14.2, 3.5, 0)),
    Part.LineSegment(App.Vector(14.2, 3.5, 0), App.Vector(17.8, 3.5, 0)),
    Part.LineSegment(App.Vector(17.8, 3.5, 0), App.Vector(19.5, 6.5, 0)),
], False)
sketch4.addConstraint([
    Sketcher.Constraint("Coincident", 0, 2, 1, 1),
    Sketcher.Constraint("Coincident", 1, 2, 2, 1),
    Sketcher.Constraint("Coincident", 2, 2, 3, 1),
    Sketcher.Constraint("Coincident", 3, 2, 4, 1),
    Sketcher.Constraint("Coincident", 4, 2, 5, 1),
    Sketcher.Constraint("Coincident", 5, 2, 0, 1),
    Sketcher.Constraint("Horizontal", 1),
    Sketcher.Constraint("Horizontal", 4),
    Sketcher.Constraint("Parallel", 0, 3),
    Sketcher.Constraint("Parallel", 2, 5),
    Sketcher.Constraint("Horizontal", 2, 2, 5, 2),
    Sketcher.Constraint("Vertical", 1, 2, 3, 2),
    Sketcher.Constraint("Vertical", 0, 2, 4, 2),
    Sketcher.Constraint("Angle", 0, Q("120 deg")),
    Sketcher.Constraint("DistanceX", 1, 2, 1, 1, 3.5),
    Sketcher.Constraint("DistanceX", 2, 2, 5, 2, 7.0),
    Sketcher.Constraint("DistanceX", -1, 1, 2, 2, 12.5),
    Sketcher.Constraint("DistanceY", -1, 1, 2, 2, 6.5),
])
pocket3 = body.newObject("PartDesign::Pocket", "Pocket002")
pocket3.Profile = sketch4
pocket3.Length = 8

sketch5 = body.newObject("Sketcher::SketchObject", "Sketch004")
sketch5.AttachmentSupport = (doc.getObject("YZ_Plane"), [""])
sketch5.MapMode = "FlatFace"
sketch5.AttachmentOffset = App.Placement(App.Vector(0, 0, 21.5), App.Rotation())
sketch5.addGeometry(Part.Circle(App.Vector(16, 6.5, 0), App.Vector(0, 0, 1), 2.5), False)
sketch5.addConstraint([
    Sketcher.Constraint("Diameter", 0, 5.0),
    Sketcher.Constraint("DistanceX", -1, 1, 0, 3, 16.0),
    Sketcher.Constraint("DistanceY", -1, 1, 0, 3, 6.5),
])

sketch6 = body.newObject("Sketcher::SketchObject", "Sketch005")
sketch6.AttachmentSupport = (doc.getObject("YZ_Plane"), [""])
sketch6.MapMode = "FlatFace"
sketch6.AttachmentOffset = App.Placement(App.Vector(0, 0, 13.5), App.Rotation())
sketch6.addGeometry(Part.Circle(App.Vector(16, 6, 0), App.Vector(0, 0, 1), 10), False)
sketch6.addConstraint([
    Sketcher.Constraint("Diameter", 0, 20.0),
    Sketcher.Constraint("DistanceX", -1, 1, 0, 3, 16.0),
    Sketcher.Constraint("DistanceY", -1, 1, 0, 3, 6.5),
])

additiveloft = body.newObject("PartDesign::AdditiveLoft", "AdditiveLoft")
additiveloft.Profile = sketch5
additiveloft.Sections = [sketch6]

sketch7 = body.newObject("Sketcher::SketchObject", "Sketch006")
sketch7.AttachmentSupport = (doc.getObject("YZ_Plane"), [""])
sketch7.MapMode = "FlatFace"
sketch7.AttachmentOffset = App.Placement(App.Vector(0, 0, -13.5), App.Rotation())
sketch7.addGeometry(Part.Circle(App.Vector(16, 6, 0), App.Vector(0, 0, 1), 10), False)
sketch7.addConstraint([
    Sketcher.Constraint("Diameter", 0, 20.0),
    Sketcher.Constraint("DistanceX", -1, 1, 0, 3, 16.0),
    Sketcher.Constraint("DistanceY", -1, 1, 0, 3, 6.5),
])

sketch8 = body.newObject("Sketcher::SketchObject", "Sketch007")
sketch8.AttachmentSupport = (doc.getObject("YZ_Plane"), [""])
sketch8.MapMode = "FlatFace"
sketch8.AttachmentOffset = App.Placement(App.Vector(0, 0, -21.5), App.Rotation())
sketch8.addGeometry(Part.Circle(App.Vector(16, 6.5, 0), App.Vector(0, 0, 1), 2.5), False)
sketch8.addConstraint([
    Sketcher.Constraint("Diameter", 0, 5.0),
    Sketcher.Constraint("DistanceX", -1, 1, 0, 3, 16.0),
    Sketcher.Constraint("DistanceY", -1, 1, 0, 3, 6.5),
])

additiveloft2 = body.newObject("PartDesign::AdditiveLoft", "AdditiveLoft001")
additiveloft2.Profile = sketch7
additiveloft2.Sections = [sketch8]

sketch9 = body.newObject("Sketcher::SketchObject", "Sketch008")
sketch9.AttachmentSupport = (doc.getObject("YZ_Plane"), [""])
sketch9.MapMode = "FlatFace"
sketch9.addGeometry(Part.Circle(App.Vector(16, 6.5, 0), App.Vector(0, 0, 1), 1.7), False)
sketch9.addConstraint([
    Sketcher.Constraint("Diameter", 0, 3.4),
    Sketcher.Constraint("DistanceX", -1, 1, 0, 3, 16.0),
    Sketcher.Constraint("DistanceY", -1, 1, 0, 3, 6.5),
])
pocket4 = body.newObject("PartDesign::Pocket", "Pocket003")
pocket4.Profile = sketch9
pocket4.Type = "ThroughAll"
pocket4.Midplane = True

sketch10 = body.newObject("Sketcher::SketchObject", "Sketch009")
sketch10.AttachmentSupport = (doc.getObject("YZ_Plane"), [""])
sketch10.MapMode = "FlatFace"
sketch10.addGeometry([
    Part.LineSegment(App.Vector(-24, 21, 0), App.Vector(-24, -7, 0)),
    Part.LineSegment(App.Vector(-24, -7, 0), App.Vector(34, -7, 0)),
    Part.LineSegment(App.Vector(34, -7, 0), App.Vector(34, 21, 0)),
    Part.LineSegment(App.Vector(34, 21, 0), App.Vector(-24, 21, 0)),
    Part.LineSegment(App.Vector(24, 0, 0), App.Vector(-16, 0, 0)),
    Part.LineSegment(App.Vector(-16, 0, 0), App.Vector(-16, 13, 0)),
    Part.LineSegment(App.Vector(-16, 13, 0), App.Vector(24, 13, 0)),
    Part.LineSegment(App.Vector(24, 13, 0), App.Vector(24, 0, 0)),
], False)
sketch10.addConstraint([
    Sketcher.Constraint("Coincident", 0, 2, 1, 1),
    Sketcher.Constraint("Coincident", 1, 2, 2, 1),
    Sketcher.Constraint("Coincident", 2, 2, 3, 1),
    Sketcher.Constraint("Coincident", 3, 2, 0, 1),
    Sketcher.Constraint("Coincident", 4, 2, 5, 1),
    Sketcher.Constraint("Coincident", 5, 2, 6, 1),
    Sketcher.Constraint("Coincident", 6, 2, 7, 1),
    Sketcher.Constraint("Coincident", 7, 2, 4, 1),
    Sketcher.Constraint("Vertical", 0),
    Sketcher.Constraint("Horizontal", 1),
    Sketcher.Constraint("Vertical", 2),
    Sketcher.Constraint("Horizontal", 3),
    Sketcher.Constraint("Horizontal", 4),
    Sketcher.Constraint("Vertical", 5),
    Sketcher.Constraint("Horizontal", 6),
    Sketcher.Constraint("Vertical", 7),
    Sketcher.Constraint("PointOnObject", 4, 2, -1),
    Sketcher.Constraint("DistanceX", 4, 2, 4, 1, 40.0),
    Sketcher.Constraint("DistanceY", 5, 1, 5, 2, 13.0),
    Sketcher.Constraint("DistanceX", 4, 2, -1, 1, 16.0),
    Sketcher.Constraint("DistanceX", 1, 1, 1, 2, 57.890867),
    Sketcher.Constraint("DistanceY", 0, 2, 0, 1, 28.005435),
    Sketcher.Constraint("DistanceX", 0, 2, -1, 1, 24.036112),
    Sketcher.Constraint("DistanceY", 0, 2, -1, 1, 7.147372),
])
pocket5 = body.newObject("PartDesign::Pocket", "Pocket004")
pocket5.Profile = sketch10
pocket5.Type = "ThroughAll"
pocket5.Midplane = True

sketch11 = body.newObject("Sketcher::SketchObject", "Sketch010")
sketch11.Placement = App.Placement(App.Vector(11.847806, -4.312249, 9.850584), App.Rotation(App.Vector(0.578532545, -0.210568626, -0.788010754), App.Vector(0.342020143, 0.939692621, 0), App.Vector(0.74048789, -0.269515551, 0.615661475), "ZXY"))
sketch11.addGeometry([
    Part.LineSegment(App.Vector(-6, 11, 0), App.Vector(-6, -4, 0)),
    Part.LineSegment(App.Vector(-6, -4, 0), App.Vector(4, -4, 0)),
    Part.LineSegment(App.Vector(4, -4, 0), App.Vector(4, 11, 0)),
    Part.LineSegment(App.Vector(4, 11, 0), App.Vector(-6, 11, 0)),
], False)
sketch11.addConstraint([
    Sketcher.Constraint("Coincident", 0, 2, 1, 1),
    Sketcher.Constraint("Coincident", 1, 2, 2, 1),
    Sketcher.Constraint("Coincident", 2, 2, 3, 1),
    Sketcher.Constraint("Coincident", 3, 2, 0, 1),
    Sketcher.Constraint("Vertical", 0),
    Sketcher.Constraint("Horizontal", 1),
    Sketcher.Constraint("Vertical", 2),
    Sketcher.Constraint("Horizontal", 3),
    Sketcher.Constraint("DistanceY", 0, 2, 0, 1, 15.361299),
    Sketcher.Constraint("DistanceX", 1, 1, 1, 2, 10.751613),
    Sketcher.Constraint("DistanceX", 0, 2, -1, 1, 6.361958),
    Sketcher.Constraint("DistanceY", 0, 2, -1, 1, 4.030061),
])
pocket6 = body.newObject("PartDesign::Pocket", "Pocket005")
pocket6.Profile = sketch11
pocket6.Length = 5
pocket6.Reversed = True

sketch12 = body.newObject("Sketcher::SketchObject", "Sketch011")
sketch12.Placement = App.Placement(App.Vector(0, 0, 25), App.Rotation(App.Vector(0.277768624, 0.248441063, 0.927966395), App.Vector(-0.665817041, 0.746114912, -0.000455295), App.Vector(-0.692482679, -0.617729372, 0.372663606), "ZXY"))
sketch12.addGeometry([
    Part.LineSegment(App.Vector(-16.8, 15.9, 0), App.Vector(-16.8, 11.4, 0)),
    Part.LineSegment(App.Vector(-16.8, 11.4, 0), App.Vector(-11.4, 11.4, 0)),
    Part.LineSegment(App.Vector(-11.4, 11.4, 0), App.Vector(-11.4, 15.9, 0)),
    Part.LineSegment(App.Vector(-11.4, 15.9, 0), App.Vector(-16.8, 15.9, 0)),
], False)
sketch12.addConstraint([
    Sketcher.Constraint("Coincident", 0, 2, 1, 1),
    Sketcher.Constraint("Coincident", 1, 2, 2, 1),
    Sketcher.Constraint("Coincident", 2, 2, 3, 1),
    Sketcher.Constraint("Coincident", 3, 2, 0, 1),
    Sketcher.Constraint("Vertical", 0),
    Sketcher.Constraint("Horizontal", 1),
    Sketcher.Constraint("Vertical", 2),
    Sketcher.Constraint("Horizontal", 3),
    Sketcher.Constraint("DistanceY", 0, 2, 0, 1, 4.529939),
    Sketcher.Constraint("DistanceX", 1, 1, 1, 2, 5.428132),
    Sketcher.Constraint("DistanceX", 0, 2, -1, 1, 16.802879),
    Sketcher.Constraint("DistanceY", -1, 1, 0, 2, 11.379866),
])
pocket7 = body.newObject("PartDesign::Pocket", "Pocket006")
pocket7.Profile = sketch12
pocket7.Length = 5
pocket7.Reversed = True
doc.recompute()

fillet = body.newObject("PartDesign::Fillet", "Fillet")
fillet.Base = (pocket7, edges_at(pocket7, [(-2.25, -8, 9.5)]))
fillet.Radius = 2
doc.recompute()

fillet2 = body.newObject("PartDesign::Fillet", "Fillet001")
fillet2.Base = (fillet, edges_at(fillet, [(4.75, -8, 9.5)]))
fillet2.Radius = 1

doc.recompute()
